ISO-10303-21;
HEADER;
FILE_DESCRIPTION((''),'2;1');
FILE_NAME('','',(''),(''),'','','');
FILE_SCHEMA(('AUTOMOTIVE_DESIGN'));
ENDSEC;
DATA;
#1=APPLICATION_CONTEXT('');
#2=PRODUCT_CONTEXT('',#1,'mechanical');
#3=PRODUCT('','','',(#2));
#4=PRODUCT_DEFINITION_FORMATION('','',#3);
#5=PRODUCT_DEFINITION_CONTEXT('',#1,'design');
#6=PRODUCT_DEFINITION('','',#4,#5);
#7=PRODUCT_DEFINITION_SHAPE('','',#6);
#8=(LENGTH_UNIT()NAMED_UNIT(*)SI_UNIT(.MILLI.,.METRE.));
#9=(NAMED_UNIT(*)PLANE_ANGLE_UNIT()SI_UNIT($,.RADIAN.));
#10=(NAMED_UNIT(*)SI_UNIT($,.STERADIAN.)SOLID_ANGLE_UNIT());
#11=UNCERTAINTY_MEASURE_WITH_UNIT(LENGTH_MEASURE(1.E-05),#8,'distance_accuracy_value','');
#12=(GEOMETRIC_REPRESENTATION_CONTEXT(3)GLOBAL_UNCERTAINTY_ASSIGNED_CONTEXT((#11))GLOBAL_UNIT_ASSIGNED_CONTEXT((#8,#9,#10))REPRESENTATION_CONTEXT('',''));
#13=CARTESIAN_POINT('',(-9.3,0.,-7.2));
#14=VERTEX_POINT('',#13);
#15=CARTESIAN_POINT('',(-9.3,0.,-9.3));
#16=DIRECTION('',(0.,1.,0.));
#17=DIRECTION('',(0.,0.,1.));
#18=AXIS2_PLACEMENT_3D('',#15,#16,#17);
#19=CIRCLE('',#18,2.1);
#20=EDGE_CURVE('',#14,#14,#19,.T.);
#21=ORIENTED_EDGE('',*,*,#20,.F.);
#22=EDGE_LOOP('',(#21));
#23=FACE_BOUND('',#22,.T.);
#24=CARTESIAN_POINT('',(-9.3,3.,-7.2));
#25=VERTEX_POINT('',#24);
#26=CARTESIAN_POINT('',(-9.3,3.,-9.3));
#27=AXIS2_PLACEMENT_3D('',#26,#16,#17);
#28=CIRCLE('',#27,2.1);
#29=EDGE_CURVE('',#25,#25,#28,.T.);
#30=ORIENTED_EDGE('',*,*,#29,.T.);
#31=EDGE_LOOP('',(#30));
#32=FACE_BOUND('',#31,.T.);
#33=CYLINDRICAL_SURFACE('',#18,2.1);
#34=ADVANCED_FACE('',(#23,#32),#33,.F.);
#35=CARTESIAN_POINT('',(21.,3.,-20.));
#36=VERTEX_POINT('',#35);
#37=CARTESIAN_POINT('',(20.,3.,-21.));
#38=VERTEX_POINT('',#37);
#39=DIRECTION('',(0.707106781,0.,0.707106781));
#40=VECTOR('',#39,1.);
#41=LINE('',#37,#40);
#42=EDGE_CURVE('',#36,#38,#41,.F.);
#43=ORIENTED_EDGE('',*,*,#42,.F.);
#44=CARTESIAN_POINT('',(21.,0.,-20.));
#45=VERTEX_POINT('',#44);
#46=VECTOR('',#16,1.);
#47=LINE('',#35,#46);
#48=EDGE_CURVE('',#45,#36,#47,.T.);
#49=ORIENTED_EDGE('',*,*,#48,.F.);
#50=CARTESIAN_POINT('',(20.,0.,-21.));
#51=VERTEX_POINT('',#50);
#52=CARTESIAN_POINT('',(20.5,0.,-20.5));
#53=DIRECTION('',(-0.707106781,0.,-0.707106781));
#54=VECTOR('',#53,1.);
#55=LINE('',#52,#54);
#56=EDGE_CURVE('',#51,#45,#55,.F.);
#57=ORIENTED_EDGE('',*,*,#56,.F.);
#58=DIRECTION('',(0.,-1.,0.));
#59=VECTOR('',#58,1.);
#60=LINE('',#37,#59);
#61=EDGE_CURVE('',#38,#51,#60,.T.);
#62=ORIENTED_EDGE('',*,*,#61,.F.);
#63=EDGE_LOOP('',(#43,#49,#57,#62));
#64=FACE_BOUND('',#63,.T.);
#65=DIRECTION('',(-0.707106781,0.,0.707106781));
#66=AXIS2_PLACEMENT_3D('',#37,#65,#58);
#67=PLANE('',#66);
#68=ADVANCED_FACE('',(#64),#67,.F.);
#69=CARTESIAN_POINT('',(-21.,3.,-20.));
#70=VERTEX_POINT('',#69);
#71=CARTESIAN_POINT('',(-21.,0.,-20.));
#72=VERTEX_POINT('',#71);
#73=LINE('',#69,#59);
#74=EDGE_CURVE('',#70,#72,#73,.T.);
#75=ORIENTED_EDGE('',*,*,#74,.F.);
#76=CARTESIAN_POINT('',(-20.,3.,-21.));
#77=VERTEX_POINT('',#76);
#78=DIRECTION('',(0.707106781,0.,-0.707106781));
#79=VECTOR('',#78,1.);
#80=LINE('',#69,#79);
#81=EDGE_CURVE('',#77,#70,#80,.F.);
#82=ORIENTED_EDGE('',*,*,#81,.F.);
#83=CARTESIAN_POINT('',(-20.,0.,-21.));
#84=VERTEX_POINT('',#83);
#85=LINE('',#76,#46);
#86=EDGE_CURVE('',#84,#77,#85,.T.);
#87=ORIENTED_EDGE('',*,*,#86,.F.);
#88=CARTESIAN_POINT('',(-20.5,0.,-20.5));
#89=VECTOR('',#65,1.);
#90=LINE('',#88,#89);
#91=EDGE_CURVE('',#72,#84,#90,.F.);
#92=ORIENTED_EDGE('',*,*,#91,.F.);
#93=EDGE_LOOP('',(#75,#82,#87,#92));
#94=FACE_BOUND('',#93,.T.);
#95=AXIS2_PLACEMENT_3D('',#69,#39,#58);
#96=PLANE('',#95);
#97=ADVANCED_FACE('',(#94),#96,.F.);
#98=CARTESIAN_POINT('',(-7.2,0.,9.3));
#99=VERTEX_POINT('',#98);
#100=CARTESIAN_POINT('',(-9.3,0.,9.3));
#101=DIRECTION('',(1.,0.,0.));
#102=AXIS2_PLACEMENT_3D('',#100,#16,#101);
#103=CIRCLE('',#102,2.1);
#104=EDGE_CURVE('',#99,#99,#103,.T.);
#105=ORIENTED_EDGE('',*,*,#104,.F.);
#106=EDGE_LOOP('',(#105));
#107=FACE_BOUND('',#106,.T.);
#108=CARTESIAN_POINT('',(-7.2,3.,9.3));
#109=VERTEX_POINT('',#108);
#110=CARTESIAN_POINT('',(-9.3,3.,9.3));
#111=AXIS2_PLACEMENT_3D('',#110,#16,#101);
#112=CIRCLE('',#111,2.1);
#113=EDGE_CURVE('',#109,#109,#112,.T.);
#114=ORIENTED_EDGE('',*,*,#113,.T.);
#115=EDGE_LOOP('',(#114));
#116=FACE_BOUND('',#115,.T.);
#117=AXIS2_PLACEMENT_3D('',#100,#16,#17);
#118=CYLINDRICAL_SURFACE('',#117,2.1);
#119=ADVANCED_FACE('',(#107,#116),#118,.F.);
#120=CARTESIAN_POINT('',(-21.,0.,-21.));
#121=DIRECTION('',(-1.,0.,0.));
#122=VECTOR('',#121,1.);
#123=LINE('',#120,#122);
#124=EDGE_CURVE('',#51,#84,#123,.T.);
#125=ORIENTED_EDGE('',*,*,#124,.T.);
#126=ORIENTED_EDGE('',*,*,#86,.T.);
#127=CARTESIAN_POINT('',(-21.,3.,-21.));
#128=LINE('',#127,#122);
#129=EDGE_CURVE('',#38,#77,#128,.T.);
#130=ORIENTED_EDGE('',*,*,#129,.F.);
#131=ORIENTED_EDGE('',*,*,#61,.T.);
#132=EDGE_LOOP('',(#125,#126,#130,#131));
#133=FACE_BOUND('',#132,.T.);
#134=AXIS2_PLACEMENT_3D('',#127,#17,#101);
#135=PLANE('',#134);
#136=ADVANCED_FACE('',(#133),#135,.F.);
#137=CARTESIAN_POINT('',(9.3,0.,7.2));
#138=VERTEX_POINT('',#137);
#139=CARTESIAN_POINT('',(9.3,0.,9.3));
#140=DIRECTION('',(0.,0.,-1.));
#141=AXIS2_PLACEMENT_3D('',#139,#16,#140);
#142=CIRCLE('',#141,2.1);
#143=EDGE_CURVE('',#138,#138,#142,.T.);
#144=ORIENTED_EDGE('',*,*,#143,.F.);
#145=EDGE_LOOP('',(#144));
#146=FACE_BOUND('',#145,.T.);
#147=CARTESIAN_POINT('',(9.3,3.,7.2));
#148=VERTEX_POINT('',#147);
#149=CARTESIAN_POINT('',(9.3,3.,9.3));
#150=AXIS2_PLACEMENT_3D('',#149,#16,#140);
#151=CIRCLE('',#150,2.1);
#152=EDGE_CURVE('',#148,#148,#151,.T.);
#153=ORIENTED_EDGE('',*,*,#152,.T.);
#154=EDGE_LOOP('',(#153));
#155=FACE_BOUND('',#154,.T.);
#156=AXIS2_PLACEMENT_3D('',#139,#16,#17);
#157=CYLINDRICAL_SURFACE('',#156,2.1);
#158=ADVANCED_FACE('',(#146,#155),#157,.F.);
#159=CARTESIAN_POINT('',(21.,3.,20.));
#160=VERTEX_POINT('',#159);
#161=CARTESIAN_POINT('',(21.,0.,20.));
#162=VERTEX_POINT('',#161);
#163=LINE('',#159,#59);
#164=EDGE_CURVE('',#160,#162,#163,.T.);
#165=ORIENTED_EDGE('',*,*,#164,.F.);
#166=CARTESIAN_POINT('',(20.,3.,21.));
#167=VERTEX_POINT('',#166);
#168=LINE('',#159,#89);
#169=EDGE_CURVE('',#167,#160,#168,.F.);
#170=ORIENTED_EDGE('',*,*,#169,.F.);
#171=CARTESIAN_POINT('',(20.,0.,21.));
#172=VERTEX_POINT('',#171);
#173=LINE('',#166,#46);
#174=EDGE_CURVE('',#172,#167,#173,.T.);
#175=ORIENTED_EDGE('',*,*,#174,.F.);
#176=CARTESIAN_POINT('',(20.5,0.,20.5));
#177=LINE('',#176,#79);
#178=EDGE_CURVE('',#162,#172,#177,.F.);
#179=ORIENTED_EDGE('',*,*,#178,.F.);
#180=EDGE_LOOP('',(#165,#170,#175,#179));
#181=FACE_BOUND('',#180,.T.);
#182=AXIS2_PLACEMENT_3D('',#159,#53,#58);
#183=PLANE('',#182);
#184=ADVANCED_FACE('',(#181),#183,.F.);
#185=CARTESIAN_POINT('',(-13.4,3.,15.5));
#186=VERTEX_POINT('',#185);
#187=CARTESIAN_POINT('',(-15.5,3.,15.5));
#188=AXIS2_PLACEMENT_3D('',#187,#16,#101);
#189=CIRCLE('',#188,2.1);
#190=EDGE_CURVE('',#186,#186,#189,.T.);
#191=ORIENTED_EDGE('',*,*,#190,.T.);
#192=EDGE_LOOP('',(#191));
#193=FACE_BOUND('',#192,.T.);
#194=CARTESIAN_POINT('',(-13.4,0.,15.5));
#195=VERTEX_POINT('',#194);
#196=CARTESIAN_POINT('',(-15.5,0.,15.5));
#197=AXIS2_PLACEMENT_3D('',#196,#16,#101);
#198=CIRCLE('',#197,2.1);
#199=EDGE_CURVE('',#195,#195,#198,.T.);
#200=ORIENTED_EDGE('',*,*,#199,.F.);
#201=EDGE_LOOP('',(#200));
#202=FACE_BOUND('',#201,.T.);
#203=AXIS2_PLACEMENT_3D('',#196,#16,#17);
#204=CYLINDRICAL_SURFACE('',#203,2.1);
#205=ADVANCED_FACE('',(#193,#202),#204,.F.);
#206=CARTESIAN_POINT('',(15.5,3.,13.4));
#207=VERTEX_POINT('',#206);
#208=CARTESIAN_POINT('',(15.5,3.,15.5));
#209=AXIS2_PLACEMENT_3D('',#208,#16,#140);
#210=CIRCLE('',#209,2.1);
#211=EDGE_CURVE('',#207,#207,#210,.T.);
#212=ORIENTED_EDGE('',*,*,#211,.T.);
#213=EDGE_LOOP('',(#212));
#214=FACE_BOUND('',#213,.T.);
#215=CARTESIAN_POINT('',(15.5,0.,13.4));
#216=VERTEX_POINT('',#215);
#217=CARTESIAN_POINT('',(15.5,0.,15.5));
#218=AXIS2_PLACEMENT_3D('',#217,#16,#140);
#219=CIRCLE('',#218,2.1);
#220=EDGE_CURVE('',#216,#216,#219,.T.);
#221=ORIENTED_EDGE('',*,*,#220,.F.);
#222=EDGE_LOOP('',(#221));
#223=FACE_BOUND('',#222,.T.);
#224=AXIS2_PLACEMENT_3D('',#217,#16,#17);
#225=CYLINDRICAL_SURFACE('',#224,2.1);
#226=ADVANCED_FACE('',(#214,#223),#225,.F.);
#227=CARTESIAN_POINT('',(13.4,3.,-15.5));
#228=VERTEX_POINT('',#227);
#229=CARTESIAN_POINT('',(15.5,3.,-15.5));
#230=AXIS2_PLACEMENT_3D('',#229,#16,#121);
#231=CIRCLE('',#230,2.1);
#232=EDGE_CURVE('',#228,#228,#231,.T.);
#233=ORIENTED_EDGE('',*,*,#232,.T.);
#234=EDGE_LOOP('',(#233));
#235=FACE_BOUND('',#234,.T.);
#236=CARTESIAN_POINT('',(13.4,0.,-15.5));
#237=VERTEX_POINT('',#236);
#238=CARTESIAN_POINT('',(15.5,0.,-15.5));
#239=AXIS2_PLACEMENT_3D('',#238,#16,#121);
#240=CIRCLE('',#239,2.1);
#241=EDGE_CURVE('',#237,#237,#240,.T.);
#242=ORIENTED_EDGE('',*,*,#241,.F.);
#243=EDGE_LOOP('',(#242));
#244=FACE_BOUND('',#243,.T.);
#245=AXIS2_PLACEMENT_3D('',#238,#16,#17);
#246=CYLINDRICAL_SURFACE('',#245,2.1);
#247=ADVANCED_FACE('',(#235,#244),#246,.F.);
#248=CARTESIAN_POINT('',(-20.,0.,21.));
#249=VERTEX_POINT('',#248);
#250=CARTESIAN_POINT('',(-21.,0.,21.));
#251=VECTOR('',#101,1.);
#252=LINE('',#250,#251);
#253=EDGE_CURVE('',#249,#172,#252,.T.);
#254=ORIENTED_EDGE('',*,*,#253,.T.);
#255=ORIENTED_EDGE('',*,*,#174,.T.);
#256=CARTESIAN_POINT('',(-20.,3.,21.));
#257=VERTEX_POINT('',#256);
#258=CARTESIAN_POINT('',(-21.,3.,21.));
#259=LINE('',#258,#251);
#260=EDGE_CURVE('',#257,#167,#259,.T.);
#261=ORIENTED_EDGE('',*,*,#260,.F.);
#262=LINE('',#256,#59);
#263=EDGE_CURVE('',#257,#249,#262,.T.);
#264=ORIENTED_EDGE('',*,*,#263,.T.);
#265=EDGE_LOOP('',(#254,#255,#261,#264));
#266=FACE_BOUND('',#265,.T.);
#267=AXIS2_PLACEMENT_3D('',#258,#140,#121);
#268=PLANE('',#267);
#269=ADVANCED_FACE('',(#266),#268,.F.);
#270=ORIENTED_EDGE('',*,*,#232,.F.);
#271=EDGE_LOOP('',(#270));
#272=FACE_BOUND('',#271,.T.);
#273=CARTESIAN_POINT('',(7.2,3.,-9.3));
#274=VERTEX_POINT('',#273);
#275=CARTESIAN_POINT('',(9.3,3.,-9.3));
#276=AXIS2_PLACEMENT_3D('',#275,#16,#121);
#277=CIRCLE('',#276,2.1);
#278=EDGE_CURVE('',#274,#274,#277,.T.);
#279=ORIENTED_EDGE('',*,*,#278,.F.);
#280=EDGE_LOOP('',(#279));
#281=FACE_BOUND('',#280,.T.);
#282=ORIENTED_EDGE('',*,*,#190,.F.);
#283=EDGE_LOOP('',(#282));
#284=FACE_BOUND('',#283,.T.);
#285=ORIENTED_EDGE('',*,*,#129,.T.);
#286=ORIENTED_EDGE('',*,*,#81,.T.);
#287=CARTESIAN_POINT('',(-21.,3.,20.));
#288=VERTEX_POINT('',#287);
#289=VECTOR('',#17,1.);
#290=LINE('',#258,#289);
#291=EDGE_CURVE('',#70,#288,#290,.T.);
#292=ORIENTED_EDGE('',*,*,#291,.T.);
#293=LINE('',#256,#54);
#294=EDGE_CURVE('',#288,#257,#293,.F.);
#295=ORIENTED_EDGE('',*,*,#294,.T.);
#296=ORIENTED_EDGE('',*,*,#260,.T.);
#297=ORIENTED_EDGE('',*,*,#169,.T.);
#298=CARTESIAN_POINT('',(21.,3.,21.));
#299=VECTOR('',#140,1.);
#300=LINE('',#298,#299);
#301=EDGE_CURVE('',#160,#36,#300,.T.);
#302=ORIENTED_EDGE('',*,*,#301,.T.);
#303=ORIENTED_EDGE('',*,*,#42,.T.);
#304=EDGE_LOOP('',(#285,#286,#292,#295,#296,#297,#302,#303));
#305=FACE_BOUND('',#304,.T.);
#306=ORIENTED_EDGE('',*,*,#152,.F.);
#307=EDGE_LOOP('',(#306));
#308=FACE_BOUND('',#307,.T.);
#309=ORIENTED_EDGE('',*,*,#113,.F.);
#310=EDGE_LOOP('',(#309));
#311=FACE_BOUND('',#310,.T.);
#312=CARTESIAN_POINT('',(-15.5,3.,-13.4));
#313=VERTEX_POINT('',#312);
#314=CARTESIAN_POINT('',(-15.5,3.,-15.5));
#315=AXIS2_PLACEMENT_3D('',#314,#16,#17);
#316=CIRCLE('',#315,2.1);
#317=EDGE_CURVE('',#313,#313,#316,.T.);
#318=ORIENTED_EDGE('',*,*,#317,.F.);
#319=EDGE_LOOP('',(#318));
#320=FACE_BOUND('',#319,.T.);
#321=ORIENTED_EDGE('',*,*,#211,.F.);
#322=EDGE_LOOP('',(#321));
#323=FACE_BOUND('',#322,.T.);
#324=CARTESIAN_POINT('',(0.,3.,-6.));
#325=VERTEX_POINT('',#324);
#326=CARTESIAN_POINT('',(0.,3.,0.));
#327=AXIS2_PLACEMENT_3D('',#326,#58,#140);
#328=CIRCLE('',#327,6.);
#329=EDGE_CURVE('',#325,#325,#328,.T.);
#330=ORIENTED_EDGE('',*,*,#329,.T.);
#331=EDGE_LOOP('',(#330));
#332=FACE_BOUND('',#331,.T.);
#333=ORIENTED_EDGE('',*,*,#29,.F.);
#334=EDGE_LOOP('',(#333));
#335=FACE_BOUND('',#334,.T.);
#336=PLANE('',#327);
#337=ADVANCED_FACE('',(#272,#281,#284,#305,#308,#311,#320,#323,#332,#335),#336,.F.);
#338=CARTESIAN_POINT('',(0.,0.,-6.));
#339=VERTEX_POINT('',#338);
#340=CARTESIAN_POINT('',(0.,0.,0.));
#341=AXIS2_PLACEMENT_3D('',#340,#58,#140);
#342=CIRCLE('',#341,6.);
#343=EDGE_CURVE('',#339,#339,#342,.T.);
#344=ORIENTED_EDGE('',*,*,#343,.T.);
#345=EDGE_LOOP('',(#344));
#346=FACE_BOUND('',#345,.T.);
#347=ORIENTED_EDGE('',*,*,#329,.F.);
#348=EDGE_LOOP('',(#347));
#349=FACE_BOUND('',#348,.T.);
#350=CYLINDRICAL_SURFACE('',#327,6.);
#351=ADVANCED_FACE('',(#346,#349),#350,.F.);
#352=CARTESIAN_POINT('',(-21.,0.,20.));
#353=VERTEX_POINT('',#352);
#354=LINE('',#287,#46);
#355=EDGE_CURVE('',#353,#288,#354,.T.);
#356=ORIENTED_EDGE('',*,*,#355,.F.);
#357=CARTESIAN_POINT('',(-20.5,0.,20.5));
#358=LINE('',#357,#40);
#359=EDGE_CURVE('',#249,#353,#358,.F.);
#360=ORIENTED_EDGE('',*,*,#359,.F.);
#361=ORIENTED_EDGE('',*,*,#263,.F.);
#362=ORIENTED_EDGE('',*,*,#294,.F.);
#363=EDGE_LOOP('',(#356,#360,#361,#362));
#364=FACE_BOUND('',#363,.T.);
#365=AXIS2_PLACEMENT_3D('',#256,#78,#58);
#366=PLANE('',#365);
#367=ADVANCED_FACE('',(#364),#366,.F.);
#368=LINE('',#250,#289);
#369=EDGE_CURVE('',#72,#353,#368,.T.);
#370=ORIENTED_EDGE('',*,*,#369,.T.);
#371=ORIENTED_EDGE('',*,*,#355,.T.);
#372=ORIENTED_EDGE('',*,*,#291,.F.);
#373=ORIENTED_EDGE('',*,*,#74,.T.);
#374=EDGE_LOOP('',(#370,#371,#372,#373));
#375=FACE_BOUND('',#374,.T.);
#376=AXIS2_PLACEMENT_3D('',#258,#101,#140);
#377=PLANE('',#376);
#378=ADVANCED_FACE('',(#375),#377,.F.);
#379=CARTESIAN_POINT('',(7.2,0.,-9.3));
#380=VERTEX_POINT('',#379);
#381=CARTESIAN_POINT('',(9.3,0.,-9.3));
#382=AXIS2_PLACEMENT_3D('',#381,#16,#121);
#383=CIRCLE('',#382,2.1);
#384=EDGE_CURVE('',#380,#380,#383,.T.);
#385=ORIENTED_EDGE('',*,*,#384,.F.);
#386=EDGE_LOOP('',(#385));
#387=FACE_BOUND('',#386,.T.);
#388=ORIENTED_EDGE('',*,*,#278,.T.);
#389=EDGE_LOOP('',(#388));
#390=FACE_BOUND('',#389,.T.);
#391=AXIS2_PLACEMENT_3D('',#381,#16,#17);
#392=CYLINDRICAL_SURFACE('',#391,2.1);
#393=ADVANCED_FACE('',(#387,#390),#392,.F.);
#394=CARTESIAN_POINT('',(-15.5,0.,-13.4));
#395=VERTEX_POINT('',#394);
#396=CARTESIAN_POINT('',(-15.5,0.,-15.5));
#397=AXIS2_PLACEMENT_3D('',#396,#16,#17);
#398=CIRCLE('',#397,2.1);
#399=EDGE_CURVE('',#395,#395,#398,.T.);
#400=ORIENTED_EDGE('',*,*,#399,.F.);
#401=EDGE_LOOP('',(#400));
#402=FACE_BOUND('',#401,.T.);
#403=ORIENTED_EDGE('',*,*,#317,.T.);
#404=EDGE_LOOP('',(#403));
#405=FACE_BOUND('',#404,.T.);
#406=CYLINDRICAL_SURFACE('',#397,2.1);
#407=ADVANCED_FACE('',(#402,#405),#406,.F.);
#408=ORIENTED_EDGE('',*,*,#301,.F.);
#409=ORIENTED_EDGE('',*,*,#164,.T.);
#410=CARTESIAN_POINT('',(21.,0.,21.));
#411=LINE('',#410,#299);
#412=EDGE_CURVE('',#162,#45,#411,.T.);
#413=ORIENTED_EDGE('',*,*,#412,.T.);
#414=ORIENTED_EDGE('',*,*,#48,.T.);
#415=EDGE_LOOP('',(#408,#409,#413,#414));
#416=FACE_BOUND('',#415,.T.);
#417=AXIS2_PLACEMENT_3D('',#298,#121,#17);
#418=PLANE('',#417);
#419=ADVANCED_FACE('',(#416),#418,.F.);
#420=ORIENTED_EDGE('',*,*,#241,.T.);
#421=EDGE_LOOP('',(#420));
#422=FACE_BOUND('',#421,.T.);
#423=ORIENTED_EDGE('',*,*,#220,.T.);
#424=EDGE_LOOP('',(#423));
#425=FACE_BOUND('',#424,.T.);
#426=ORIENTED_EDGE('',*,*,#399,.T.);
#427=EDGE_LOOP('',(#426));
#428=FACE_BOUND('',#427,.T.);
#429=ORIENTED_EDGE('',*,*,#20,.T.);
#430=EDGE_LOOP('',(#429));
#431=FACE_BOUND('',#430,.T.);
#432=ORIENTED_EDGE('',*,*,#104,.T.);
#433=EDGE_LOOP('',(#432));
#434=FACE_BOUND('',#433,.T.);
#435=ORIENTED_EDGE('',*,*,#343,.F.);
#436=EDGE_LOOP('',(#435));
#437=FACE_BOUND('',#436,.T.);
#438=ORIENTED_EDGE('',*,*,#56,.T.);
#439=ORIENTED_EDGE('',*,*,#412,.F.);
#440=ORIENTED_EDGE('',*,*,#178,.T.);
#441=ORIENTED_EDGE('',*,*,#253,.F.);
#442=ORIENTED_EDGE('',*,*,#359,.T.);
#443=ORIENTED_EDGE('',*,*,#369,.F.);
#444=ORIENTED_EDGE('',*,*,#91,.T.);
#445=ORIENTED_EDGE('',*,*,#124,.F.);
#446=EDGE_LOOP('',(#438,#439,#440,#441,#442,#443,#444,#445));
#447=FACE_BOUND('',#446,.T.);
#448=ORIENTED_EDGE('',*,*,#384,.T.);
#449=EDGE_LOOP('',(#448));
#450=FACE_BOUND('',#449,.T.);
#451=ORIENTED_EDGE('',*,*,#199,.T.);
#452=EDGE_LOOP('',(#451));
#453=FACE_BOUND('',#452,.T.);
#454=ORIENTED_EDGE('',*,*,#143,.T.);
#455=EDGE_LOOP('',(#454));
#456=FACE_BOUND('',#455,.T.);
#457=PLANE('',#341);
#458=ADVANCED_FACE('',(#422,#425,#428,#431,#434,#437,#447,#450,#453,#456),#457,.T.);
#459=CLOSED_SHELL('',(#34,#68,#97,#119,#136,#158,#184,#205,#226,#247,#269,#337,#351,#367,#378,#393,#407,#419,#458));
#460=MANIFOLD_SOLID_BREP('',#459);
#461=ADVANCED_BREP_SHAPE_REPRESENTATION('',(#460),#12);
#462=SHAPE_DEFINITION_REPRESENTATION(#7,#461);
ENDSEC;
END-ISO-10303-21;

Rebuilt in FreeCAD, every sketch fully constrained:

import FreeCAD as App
import Part
import Sketcher
Q = App.Units.Quantity


def edges_at(feature, points):
    """Names of the edges that pass closest to the given points."""
    edges = feature.Shape.Edges
    near = lambda p: min(range(len(edges)), key=lambda i: edges[i].distToShape(Part.Vertex(*p))[0])
    return sorted({f"Edge{near(p) + 1}" for p in points})


def add_polygon(sketch, points):
    """Adds a closed chain of lines whose ends are joined by coincident constraints."""
    first, n = sketch.GeometryCount, len(points)
    for a, b in zip(points, points[1:] + points[:1]):
        sketch.addGeometry(Part.LineSegment(App.Vector(*a, 0), App.Vector(*b, 0)), False)
    for i in range(n):
        sketch.addConstraint(Sketcher.Constraint("Coincident", first + i, 2, first + (i + 1) % n, 1))

doc = App.newDocument("Part")
params = doc.addObject("Spreadsheet::Sheet", "Params")
for row, (alias, value) in enumerate([
    ("sketch1_width", "42 mm"),
    ("pad1_length", "3 mm"),
    ("sketch2_diameter", "12 mm"),
    ("sketch3_diameter", "4.2 mm"),
    ("sketch4_diameter", "4.2 mm"),
    ("chamfer_size", "1 mm"),
], start=1):
    params.set(f"A{row}", alias)
    params.set(f"B{row}", "=" + value)
    params.setAlias(f"B{row}", alias)

body = doc.addObject("PartDesign::Body", "Body")

# Sketch on XZ plane
sketch1 = body.newObject("Sketcher::SketchObject", "Sketch")
sketch1.AttachmentSupport = (doc.getObject("XZ_Plane"), [""])
sketch1.MapMode = "FlatFace"
add_polygon(sketch1, [(-21, -21), (-21, 21), (21, 21), (21, -21)])  # lines 0-3
sketch1.addConstraint([
    Sketcher.Constraint("Vertical", 0),
    Sketcher.Constraint("Horizontal", 1),
    Sketcher.Constraint("Vertical", 2),
    Sketcher.Constraint("Horizontal", 3),
    Sketcher.Constraint("Symmetric", 0, 2, 2, 2, -1, 1),
    Sketcher.Constraint("Equal", 3, 0),
    Sketcher.Constraint("DistanceX", 1, 1, 1, 2, Q("42 mm")),
])
sketch1.setExpression("Constraints[10]", "Params.sketch1_width")
pad1 = body.newObject("PartDesign::Pad", "Pad")
pad1.Profile = sketch1
pad1.setExpression("Length", "Params.pad1_length")
pad1.Reversed = True

# Sketch on XZ plane
sketch2 = body.newObject("Sketcher::SketchObject", "Sketch001")
sketch2.AttachmentSupport = (doc.getObject("XZ_Plane"), [""])
sketch2.MapMode = "FlatFace"
sketch2.addGeometry(Part.Circle(App.Vector(0, 0, 0), App.Vector(0, 0, 1), 6), False)
sketch2.addConstraint([
    Sketcher.Constraint("Coincident", 0, 3, -1, 1),
    Sketcher.Constraint("Diameter", 0, Q("12 mm")),
])
sketch2.setExpression("Constraints[1]", "Params.sketch2_diameter")
pocket1 = body.newObject("PartDesign::Pocket", "Pocket")
pocket1.Profile = sketch2
pocket1.Type = "ThroughAll"

# Sketch on XZ plane
sketch3 = body.newObject("Sketcher::SketchObject", "Sketch002")
sketch3.AttachmentSupport = (doc.getObject("XZ_Plane"), [""])
sketch3.MapMode = "FlatFace"
sketch3.AttachmentOffset = App.Placement(App.Vector(0, 0, -3), App.Rotation())
sketch3.addGeometry(Part.Circle(App.Vector(-9.3, -9.3, 0), App.Vector(0, 0, 1), 2.1), False)
sketch3.addConstraint([
    Sketcher.Constraint("Diameter", 0, Q("4.2 mm")),
    Sketcher.Constraint("DistanceX", 0, 3, -1, 1, Q("9.3 mm")),
    Sketcher.Constraint("DistanceY", 0, 3, -1, 1, Q("9.3 mm")),
])
sketch3.setExpression("Constraints[0]", "Params.sketch3_diameter")
pocket2 = body.newObject("PartDesign::Pocket", "Pocket001")
pocket2.Profile = sketch3
pocket2.Type = "ThroughAll"
pocket2.Reversed = True

# Sketch on XZ plane
sketch4 = body.newObject("Sketcher::SketchObject", "Sketch003")
sketch4.AttachmentSupport = (doc.getObject("XZ_Plane"), [""])
sketch4.MapMode = "FlatFace"
sketch4.AttachmentOffset = App.Placement(App.Vector(0, 0, -3), App.Rotation())
sketch4.addGeometry(Part.Circle(App.Vector(-15.5, -15.5, 0), App.Vector(0, 0, 1), 2.1), False)
sketch4.addConstraint([
    Sketcher.Constraint("Diameter", 0, Q("4.2 mm")),
    Sketcher.Constraint("DistanceX", 0, 3, -1, 1, Q("15.5 mm")),
    Sketcher.Constraint("DistanceY", 0, 3, -1, 1, Q("15.5 mm")),
])
sketch4.setExpression("Constraints[0]", "Params.sketch4_diameter")
pocket3 = body.newObject("PartDesign::Pocket", "Pocket002")
pocket3.Profile = sketch4
pocket3.Type = "ThroughAll"
pocket3.Reversed = True
doc.recompute()

polarpattern = body.newObject("PartDesign::PolarPattern", "PolarPattern")
polarpattern.Originals = [pocket2, pocket3]
polarpattern.Axis = (doc.getObject("Y_Axis"), [""])
polarpattern.Angle = 360
polarpattern.Occurrences = 4
body.Tip = polarpattern
doc.recompute()

chamfer = body.newObject("PartDesign::Chamfer", "Chamfer")
chamfer.Base = (polarpattern, edges_at(polarpattern, [
    (21, 1.5, 21),
    (-21, 1.5, 21),
    (-21, 1.5, -21),
    (21, 1.5, -21),
]))
chamfer.setExpression("Size", "Params.chamfer_size")

doc.recompute()
